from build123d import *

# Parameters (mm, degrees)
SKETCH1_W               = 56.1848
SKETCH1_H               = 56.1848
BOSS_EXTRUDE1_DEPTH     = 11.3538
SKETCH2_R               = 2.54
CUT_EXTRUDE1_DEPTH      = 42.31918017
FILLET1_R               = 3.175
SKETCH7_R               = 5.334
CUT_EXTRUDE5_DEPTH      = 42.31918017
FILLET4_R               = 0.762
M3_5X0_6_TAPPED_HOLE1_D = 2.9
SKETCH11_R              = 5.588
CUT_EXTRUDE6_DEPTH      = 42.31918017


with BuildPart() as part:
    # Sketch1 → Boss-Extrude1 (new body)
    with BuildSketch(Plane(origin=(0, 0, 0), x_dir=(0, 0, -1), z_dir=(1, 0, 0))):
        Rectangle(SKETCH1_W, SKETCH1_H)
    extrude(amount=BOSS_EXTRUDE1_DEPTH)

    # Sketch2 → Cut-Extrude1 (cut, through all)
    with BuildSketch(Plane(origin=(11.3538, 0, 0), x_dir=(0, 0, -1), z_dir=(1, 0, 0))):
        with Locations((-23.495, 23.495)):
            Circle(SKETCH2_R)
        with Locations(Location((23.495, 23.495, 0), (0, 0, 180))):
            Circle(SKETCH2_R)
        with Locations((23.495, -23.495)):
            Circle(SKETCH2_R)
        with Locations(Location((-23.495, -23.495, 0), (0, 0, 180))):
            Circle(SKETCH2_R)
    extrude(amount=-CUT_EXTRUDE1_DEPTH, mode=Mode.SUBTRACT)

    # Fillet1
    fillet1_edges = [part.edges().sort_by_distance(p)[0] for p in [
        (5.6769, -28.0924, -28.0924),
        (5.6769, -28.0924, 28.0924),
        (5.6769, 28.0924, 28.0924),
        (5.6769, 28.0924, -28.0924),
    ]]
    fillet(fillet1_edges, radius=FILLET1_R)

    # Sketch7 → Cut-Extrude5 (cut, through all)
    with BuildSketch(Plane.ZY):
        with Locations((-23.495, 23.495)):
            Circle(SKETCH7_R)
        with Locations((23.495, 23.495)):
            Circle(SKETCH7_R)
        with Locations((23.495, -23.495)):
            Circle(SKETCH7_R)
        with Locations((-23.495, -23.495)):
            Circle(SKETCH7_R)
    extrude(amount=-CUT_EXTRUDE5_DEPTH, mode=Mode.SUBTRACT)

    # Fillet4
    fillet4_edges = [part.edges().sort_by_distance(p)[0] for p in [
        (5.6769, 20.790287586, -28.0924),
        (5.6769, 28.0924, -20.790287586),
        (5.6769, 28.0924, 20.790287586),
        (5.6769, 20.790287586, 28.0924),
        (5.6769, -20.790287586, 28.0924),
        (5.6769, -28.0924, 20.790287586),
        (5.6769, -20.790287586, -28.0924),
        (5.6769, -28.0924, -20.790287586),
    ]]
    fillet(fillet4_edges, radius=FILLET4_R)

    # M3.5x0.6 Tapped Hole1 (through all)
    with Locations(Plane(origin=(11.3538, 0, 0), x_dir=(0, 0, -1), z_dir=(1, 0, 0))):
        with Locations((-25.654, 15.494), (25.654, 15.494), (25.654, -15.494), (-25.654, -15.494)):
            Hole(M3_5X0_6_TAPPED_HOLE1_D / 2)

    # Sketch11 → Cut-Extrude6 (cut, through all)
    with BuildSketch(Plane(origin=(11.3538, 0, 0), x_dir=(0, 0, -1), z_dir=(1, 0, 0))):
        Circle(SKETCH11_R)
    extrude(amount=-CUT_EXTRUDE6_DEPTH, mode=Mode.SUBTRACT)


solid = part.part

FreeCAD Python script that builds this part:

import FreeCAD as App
import Part
import Sketcher

V = App.Vector
Q = App.Units.Quantity


def edges_at(feature, points):
    """Names of the edges that pass closest to the given points."""
    edges = feature.Shape.Edges
    near = lambda p: min(range(len(edges)), key=lambda i: edges[i].distToShape(Part.Vertex(*p))[0])
    return sorted({f"Edge{near(p) + 1}" for p in points})


def add_polygon(sketch, points):
    """Adds a closed chain of lines whose ends are joined by coincident constraints."""
    first, n = sketch.GeometryCount, len(points)
    for a, b in zip(points, points[1:] + points[:1]):
        sketch.addGeometry(Part.LineSegment(App.Vector(*a, 0), App.Vector(*b, 0)), False)
    for i in range(n):
        sketch.addConstraint(Sketcher.Constraint("Coincident", first + i, 2, first + (i + 1) % n, 1))

doc = App.newDocument("Part")
body = doc.addObject("PartDesign::Body", "Body")

# Sketch on YZ plane
sketch1 = body.newObject("Sketcher::SketchObject", "Sketch")
sketch1.AttachmentSupport = (doc.getObject("YZ_Plane"), [""])
sketch1.MapMode = "FlatFace"
add_polygon(sketch1, [(28, 28), (-28, 28), (-28, -28), (28, -28)])  # lines 0-3
sketch1.addConstraint([
    Sketcher.Constraint("Horizontal", 0),
    Sketcher.Constraint("Vertical", 1),
    Sketcher.Constraint("Horizontal", 2),
    Sketcher.Constraint("Vertical", 3),
    Sketcher.Constraint("Symmetric", 0, 2, 2, 2, -1, 1),
    Sketcher.Constraint("Equal", 2, 1),
    Sketcher.Constraint("DistanceX", 0, 2, 0, 1, Q("2.212 in")),
])
pad1 = body.newObject("PartDesign::Pad", "Pad")
pad1.Profile = sketch1
pad1.Length = Q("0.447 in")

# Sketch on YZ plane
sketch2 = body.newObject("Sketcher::SketchObject", "Sketch001")
sketch2.AttachmentSupport = (doc.getObject("YZ_Plane"), [""])
sketch2.MapMode = "FlatFace"
sketch2.AttachmentOffset = App.Placement(V(0, 0, 0.447 * 25.4), App.Rotation())
sketch2.addGeometry([
    Part.Circle(V(23.5, 23.5, 0), V(0, 0, 1), 2.5),
    Part.Circle(V(23.5, -23.5, 0), V(0, 0, 1), 2.5),
    Part.Circle(V(-23.5, -23.5, 0), V(0, 0, 1), 2.5),
    Part.Circle(V(-23.5, 23.5, 0), V(0, 0, 1), 2.5),
], False)
sketch2.addConstraint([
    Sketcher.Constraint("Equal", 0, 1),
    Sketcher.Constraint("Equal", 1, 2),
    Sketcher.Constraint("Equal", 2, 3),
    Sketcher.Constraint("Symmetric", 0, 3, 2, 3, -1, 1),
    Sketcher.Constraint("Symmetric", 1, 3, 3, 3, -1, 1),
    Sketcher.Constraint("Symmetric", 1, 3, 2, 3, -2),
    Sketcher.Constraint("Diameter", 0, Q("0.2 in")),
    Sketcher.Constraint("DistanceY", 1, 3, 0, 3, Q("1.85 in")),
    Sketcher.Constraint("DistanceX", 2, 3, 1, 3, Q("1.85 in")),
])
pocket1 = body.newObject("PartDesign::Pocket", "Pocket")
pocket1.Profile = sketch2
pocket1.Type = "ThroughAll"
doc.recompute()

fillet = body.newObject("PartDesign::Fillet", "Fillet")
fillet.Base = (pocket1, edges_at(pocket1, [
    (5.677, -28.092, -28.092),
    (5.677, -28.092, 28.092),
    (5.677, 28.092, 28.092),
    (5.677, 28.092, -28.092),
]))
fillet.Radius = Q("0.125 in")

# Sketch on YZ plane
sketch3 = body.newObject("Sketcher::SketchObject", "Sketch002")
sketch3.AttachmentSupport = (doc.getObject("YZ_Plane"), [""])
sketch3.MapMode = "FlatFace"
sketch3.addGeometry([
    Part.Circle(V(23, -23, 0), V(0, 0, 1), 5),
    Part.Circle(V(23, 23, 0), V(0, 0, 1), 5),
    Part.Circle(V(-23, 23, 0), V(0, 0, 1), 5),
    Part.Circle(V(-23, -23, 0), V(0, 0, 1), 5),
], False)
sketch3.addConstraint([
    Sketcher.Constraint("Equal", 0, 1),
    Sketcher.Constraint("Equal", 1, 2),
    Sketcher.Constraint("Equal", 2, 3),
    Sketcher.Constraint("Symmetric", 0, 3, 2, 3, -1, 1),
    Sketcher.Constraint("Symmetric", 1, 3, 3, 3, -1, 1),
    Sketcher.Constraint("Symmetric", 1, 3, 2, 3, -2),
    Sketcher.Constraint("Diameter", 0, Q("0.42 in")),
    Sketcher.Constraint("DistanceY", 0, 3, 1, 3, Q("1.85 in")),
    Sketcher.Constraint("DistanceX", 2, 3, 1, 3, Q("1.85 in")),
])
pocket2 = body.newObject("PartDesign::Pocket", "Pocket001")
pocket2.Profile = sketch3
pocket2.Type = "ThroughAll"
pocket2.Reversed = True
doc.recompute()

fillet2 = body.newObject("PartDesign::Fillet", "Fillet001")
fillet2.Base = (pocket2, edges_at(pocket2, [
    (5.677, 20.79, -28.092),
    (5.677, 28.092, -20.79),
    (5.677, 28.092, 20.79),
    (5.677, 20.79, 28.092),
    (5.677, -20.79, 28.092),
    (5.677, -28.092, 20.79),
    (5.677, -20.79, -28.092),
    (5.677, -28.092, -20.79),
]))
fillet2.Radius = Q("0.03 in")

# Sketch on YZ plane
sketch4 = body.newObject("Sketcher::SketchObject", "Sketch003")
sketch4.AttachmentSupport = (doc.getObject("YZ_Plane"), [""])
sketch4.MapMode = "FlatFace"
sketch4.AttachmentOffset = App.Placement(V(0, 0, 0.447 * 25.4), App.Rotation())
sketch4.addGeometry([
    Part.Circle(V(15.5, 25.7, 0), V(0, 0, 1), 1.4),
    Part.Circle(V(15.5, -25.7, 0), V(0, 0, 1), 1.4),
    Part.Circle(V(-15.5, -25.7, 0), V(0, 0, 1), 1.4),
    Part.Circle(V(-15.5, 25.7, 0), V(0, 0, 1), 1.4),
], False)
sketch4.addConstraint([
    Sketcher.Constraint("Equal", 0, 1),
    Sketcher.Constraint("Equal", 1, 2),
    Sketcher.Constraint("Equal", 2, 3),
    Sketcher.Constraint("Symmetric", 0, 3, 2, 3, -1, 1),
    Sketcher.Constraint("Symmetric", 1, 3, 3, 3, -1, 1),
    Sketcher.Constraint("Symmetric", 1, 3, 2, 3, -2),
    Sketcher.Constraint("Diameter", 0, 2.9),
    Sketcher.Constraint("DistanceX", -1, 1, 0, 3, Q("0.61 in")),
    Sketcher.Constraint("DistanceY", -1, 1, 0, 3, Q("1.01 in")),
])
doc.recompute()
hole = body.newObject("PartDesign::Hole", "Hole")
hole.Profile = sketch4
hole.ThreadType = "None"
hole.Diameter = 2.9
hole.DepthType = "ThroughAll"

# Sketch on YZ plane
sketch5 = body.newObject("Sketcher::SketchObject", "Sketch004")
sketch5.AttachmentSupport = (doc.getObject("YZ_Plane"), [""])
sketch5.MapMode = "FlatFace"
sketch5.AttachmentOffset = App.Placement(V(0, 0, 0.447 * 25.4), App.Rotation())
sketch5.addGeometry(Part.Circle(V(0, 0, 0), V(0, 0, 1), 6), False)
sketch5.addConstraint([
    Sketcher.Constraint("Coincident", 0, 3, -1, 1),
    Sketcher.Constraint("Diameter", 0, Q("0.44 in")),
])
pocket3 = body.newObject("PartDesign::Pocket", "Pocket002")
pocket3.Profile = sketch5
pocket3.Type = "ThroughAll"

doc.recompute()
